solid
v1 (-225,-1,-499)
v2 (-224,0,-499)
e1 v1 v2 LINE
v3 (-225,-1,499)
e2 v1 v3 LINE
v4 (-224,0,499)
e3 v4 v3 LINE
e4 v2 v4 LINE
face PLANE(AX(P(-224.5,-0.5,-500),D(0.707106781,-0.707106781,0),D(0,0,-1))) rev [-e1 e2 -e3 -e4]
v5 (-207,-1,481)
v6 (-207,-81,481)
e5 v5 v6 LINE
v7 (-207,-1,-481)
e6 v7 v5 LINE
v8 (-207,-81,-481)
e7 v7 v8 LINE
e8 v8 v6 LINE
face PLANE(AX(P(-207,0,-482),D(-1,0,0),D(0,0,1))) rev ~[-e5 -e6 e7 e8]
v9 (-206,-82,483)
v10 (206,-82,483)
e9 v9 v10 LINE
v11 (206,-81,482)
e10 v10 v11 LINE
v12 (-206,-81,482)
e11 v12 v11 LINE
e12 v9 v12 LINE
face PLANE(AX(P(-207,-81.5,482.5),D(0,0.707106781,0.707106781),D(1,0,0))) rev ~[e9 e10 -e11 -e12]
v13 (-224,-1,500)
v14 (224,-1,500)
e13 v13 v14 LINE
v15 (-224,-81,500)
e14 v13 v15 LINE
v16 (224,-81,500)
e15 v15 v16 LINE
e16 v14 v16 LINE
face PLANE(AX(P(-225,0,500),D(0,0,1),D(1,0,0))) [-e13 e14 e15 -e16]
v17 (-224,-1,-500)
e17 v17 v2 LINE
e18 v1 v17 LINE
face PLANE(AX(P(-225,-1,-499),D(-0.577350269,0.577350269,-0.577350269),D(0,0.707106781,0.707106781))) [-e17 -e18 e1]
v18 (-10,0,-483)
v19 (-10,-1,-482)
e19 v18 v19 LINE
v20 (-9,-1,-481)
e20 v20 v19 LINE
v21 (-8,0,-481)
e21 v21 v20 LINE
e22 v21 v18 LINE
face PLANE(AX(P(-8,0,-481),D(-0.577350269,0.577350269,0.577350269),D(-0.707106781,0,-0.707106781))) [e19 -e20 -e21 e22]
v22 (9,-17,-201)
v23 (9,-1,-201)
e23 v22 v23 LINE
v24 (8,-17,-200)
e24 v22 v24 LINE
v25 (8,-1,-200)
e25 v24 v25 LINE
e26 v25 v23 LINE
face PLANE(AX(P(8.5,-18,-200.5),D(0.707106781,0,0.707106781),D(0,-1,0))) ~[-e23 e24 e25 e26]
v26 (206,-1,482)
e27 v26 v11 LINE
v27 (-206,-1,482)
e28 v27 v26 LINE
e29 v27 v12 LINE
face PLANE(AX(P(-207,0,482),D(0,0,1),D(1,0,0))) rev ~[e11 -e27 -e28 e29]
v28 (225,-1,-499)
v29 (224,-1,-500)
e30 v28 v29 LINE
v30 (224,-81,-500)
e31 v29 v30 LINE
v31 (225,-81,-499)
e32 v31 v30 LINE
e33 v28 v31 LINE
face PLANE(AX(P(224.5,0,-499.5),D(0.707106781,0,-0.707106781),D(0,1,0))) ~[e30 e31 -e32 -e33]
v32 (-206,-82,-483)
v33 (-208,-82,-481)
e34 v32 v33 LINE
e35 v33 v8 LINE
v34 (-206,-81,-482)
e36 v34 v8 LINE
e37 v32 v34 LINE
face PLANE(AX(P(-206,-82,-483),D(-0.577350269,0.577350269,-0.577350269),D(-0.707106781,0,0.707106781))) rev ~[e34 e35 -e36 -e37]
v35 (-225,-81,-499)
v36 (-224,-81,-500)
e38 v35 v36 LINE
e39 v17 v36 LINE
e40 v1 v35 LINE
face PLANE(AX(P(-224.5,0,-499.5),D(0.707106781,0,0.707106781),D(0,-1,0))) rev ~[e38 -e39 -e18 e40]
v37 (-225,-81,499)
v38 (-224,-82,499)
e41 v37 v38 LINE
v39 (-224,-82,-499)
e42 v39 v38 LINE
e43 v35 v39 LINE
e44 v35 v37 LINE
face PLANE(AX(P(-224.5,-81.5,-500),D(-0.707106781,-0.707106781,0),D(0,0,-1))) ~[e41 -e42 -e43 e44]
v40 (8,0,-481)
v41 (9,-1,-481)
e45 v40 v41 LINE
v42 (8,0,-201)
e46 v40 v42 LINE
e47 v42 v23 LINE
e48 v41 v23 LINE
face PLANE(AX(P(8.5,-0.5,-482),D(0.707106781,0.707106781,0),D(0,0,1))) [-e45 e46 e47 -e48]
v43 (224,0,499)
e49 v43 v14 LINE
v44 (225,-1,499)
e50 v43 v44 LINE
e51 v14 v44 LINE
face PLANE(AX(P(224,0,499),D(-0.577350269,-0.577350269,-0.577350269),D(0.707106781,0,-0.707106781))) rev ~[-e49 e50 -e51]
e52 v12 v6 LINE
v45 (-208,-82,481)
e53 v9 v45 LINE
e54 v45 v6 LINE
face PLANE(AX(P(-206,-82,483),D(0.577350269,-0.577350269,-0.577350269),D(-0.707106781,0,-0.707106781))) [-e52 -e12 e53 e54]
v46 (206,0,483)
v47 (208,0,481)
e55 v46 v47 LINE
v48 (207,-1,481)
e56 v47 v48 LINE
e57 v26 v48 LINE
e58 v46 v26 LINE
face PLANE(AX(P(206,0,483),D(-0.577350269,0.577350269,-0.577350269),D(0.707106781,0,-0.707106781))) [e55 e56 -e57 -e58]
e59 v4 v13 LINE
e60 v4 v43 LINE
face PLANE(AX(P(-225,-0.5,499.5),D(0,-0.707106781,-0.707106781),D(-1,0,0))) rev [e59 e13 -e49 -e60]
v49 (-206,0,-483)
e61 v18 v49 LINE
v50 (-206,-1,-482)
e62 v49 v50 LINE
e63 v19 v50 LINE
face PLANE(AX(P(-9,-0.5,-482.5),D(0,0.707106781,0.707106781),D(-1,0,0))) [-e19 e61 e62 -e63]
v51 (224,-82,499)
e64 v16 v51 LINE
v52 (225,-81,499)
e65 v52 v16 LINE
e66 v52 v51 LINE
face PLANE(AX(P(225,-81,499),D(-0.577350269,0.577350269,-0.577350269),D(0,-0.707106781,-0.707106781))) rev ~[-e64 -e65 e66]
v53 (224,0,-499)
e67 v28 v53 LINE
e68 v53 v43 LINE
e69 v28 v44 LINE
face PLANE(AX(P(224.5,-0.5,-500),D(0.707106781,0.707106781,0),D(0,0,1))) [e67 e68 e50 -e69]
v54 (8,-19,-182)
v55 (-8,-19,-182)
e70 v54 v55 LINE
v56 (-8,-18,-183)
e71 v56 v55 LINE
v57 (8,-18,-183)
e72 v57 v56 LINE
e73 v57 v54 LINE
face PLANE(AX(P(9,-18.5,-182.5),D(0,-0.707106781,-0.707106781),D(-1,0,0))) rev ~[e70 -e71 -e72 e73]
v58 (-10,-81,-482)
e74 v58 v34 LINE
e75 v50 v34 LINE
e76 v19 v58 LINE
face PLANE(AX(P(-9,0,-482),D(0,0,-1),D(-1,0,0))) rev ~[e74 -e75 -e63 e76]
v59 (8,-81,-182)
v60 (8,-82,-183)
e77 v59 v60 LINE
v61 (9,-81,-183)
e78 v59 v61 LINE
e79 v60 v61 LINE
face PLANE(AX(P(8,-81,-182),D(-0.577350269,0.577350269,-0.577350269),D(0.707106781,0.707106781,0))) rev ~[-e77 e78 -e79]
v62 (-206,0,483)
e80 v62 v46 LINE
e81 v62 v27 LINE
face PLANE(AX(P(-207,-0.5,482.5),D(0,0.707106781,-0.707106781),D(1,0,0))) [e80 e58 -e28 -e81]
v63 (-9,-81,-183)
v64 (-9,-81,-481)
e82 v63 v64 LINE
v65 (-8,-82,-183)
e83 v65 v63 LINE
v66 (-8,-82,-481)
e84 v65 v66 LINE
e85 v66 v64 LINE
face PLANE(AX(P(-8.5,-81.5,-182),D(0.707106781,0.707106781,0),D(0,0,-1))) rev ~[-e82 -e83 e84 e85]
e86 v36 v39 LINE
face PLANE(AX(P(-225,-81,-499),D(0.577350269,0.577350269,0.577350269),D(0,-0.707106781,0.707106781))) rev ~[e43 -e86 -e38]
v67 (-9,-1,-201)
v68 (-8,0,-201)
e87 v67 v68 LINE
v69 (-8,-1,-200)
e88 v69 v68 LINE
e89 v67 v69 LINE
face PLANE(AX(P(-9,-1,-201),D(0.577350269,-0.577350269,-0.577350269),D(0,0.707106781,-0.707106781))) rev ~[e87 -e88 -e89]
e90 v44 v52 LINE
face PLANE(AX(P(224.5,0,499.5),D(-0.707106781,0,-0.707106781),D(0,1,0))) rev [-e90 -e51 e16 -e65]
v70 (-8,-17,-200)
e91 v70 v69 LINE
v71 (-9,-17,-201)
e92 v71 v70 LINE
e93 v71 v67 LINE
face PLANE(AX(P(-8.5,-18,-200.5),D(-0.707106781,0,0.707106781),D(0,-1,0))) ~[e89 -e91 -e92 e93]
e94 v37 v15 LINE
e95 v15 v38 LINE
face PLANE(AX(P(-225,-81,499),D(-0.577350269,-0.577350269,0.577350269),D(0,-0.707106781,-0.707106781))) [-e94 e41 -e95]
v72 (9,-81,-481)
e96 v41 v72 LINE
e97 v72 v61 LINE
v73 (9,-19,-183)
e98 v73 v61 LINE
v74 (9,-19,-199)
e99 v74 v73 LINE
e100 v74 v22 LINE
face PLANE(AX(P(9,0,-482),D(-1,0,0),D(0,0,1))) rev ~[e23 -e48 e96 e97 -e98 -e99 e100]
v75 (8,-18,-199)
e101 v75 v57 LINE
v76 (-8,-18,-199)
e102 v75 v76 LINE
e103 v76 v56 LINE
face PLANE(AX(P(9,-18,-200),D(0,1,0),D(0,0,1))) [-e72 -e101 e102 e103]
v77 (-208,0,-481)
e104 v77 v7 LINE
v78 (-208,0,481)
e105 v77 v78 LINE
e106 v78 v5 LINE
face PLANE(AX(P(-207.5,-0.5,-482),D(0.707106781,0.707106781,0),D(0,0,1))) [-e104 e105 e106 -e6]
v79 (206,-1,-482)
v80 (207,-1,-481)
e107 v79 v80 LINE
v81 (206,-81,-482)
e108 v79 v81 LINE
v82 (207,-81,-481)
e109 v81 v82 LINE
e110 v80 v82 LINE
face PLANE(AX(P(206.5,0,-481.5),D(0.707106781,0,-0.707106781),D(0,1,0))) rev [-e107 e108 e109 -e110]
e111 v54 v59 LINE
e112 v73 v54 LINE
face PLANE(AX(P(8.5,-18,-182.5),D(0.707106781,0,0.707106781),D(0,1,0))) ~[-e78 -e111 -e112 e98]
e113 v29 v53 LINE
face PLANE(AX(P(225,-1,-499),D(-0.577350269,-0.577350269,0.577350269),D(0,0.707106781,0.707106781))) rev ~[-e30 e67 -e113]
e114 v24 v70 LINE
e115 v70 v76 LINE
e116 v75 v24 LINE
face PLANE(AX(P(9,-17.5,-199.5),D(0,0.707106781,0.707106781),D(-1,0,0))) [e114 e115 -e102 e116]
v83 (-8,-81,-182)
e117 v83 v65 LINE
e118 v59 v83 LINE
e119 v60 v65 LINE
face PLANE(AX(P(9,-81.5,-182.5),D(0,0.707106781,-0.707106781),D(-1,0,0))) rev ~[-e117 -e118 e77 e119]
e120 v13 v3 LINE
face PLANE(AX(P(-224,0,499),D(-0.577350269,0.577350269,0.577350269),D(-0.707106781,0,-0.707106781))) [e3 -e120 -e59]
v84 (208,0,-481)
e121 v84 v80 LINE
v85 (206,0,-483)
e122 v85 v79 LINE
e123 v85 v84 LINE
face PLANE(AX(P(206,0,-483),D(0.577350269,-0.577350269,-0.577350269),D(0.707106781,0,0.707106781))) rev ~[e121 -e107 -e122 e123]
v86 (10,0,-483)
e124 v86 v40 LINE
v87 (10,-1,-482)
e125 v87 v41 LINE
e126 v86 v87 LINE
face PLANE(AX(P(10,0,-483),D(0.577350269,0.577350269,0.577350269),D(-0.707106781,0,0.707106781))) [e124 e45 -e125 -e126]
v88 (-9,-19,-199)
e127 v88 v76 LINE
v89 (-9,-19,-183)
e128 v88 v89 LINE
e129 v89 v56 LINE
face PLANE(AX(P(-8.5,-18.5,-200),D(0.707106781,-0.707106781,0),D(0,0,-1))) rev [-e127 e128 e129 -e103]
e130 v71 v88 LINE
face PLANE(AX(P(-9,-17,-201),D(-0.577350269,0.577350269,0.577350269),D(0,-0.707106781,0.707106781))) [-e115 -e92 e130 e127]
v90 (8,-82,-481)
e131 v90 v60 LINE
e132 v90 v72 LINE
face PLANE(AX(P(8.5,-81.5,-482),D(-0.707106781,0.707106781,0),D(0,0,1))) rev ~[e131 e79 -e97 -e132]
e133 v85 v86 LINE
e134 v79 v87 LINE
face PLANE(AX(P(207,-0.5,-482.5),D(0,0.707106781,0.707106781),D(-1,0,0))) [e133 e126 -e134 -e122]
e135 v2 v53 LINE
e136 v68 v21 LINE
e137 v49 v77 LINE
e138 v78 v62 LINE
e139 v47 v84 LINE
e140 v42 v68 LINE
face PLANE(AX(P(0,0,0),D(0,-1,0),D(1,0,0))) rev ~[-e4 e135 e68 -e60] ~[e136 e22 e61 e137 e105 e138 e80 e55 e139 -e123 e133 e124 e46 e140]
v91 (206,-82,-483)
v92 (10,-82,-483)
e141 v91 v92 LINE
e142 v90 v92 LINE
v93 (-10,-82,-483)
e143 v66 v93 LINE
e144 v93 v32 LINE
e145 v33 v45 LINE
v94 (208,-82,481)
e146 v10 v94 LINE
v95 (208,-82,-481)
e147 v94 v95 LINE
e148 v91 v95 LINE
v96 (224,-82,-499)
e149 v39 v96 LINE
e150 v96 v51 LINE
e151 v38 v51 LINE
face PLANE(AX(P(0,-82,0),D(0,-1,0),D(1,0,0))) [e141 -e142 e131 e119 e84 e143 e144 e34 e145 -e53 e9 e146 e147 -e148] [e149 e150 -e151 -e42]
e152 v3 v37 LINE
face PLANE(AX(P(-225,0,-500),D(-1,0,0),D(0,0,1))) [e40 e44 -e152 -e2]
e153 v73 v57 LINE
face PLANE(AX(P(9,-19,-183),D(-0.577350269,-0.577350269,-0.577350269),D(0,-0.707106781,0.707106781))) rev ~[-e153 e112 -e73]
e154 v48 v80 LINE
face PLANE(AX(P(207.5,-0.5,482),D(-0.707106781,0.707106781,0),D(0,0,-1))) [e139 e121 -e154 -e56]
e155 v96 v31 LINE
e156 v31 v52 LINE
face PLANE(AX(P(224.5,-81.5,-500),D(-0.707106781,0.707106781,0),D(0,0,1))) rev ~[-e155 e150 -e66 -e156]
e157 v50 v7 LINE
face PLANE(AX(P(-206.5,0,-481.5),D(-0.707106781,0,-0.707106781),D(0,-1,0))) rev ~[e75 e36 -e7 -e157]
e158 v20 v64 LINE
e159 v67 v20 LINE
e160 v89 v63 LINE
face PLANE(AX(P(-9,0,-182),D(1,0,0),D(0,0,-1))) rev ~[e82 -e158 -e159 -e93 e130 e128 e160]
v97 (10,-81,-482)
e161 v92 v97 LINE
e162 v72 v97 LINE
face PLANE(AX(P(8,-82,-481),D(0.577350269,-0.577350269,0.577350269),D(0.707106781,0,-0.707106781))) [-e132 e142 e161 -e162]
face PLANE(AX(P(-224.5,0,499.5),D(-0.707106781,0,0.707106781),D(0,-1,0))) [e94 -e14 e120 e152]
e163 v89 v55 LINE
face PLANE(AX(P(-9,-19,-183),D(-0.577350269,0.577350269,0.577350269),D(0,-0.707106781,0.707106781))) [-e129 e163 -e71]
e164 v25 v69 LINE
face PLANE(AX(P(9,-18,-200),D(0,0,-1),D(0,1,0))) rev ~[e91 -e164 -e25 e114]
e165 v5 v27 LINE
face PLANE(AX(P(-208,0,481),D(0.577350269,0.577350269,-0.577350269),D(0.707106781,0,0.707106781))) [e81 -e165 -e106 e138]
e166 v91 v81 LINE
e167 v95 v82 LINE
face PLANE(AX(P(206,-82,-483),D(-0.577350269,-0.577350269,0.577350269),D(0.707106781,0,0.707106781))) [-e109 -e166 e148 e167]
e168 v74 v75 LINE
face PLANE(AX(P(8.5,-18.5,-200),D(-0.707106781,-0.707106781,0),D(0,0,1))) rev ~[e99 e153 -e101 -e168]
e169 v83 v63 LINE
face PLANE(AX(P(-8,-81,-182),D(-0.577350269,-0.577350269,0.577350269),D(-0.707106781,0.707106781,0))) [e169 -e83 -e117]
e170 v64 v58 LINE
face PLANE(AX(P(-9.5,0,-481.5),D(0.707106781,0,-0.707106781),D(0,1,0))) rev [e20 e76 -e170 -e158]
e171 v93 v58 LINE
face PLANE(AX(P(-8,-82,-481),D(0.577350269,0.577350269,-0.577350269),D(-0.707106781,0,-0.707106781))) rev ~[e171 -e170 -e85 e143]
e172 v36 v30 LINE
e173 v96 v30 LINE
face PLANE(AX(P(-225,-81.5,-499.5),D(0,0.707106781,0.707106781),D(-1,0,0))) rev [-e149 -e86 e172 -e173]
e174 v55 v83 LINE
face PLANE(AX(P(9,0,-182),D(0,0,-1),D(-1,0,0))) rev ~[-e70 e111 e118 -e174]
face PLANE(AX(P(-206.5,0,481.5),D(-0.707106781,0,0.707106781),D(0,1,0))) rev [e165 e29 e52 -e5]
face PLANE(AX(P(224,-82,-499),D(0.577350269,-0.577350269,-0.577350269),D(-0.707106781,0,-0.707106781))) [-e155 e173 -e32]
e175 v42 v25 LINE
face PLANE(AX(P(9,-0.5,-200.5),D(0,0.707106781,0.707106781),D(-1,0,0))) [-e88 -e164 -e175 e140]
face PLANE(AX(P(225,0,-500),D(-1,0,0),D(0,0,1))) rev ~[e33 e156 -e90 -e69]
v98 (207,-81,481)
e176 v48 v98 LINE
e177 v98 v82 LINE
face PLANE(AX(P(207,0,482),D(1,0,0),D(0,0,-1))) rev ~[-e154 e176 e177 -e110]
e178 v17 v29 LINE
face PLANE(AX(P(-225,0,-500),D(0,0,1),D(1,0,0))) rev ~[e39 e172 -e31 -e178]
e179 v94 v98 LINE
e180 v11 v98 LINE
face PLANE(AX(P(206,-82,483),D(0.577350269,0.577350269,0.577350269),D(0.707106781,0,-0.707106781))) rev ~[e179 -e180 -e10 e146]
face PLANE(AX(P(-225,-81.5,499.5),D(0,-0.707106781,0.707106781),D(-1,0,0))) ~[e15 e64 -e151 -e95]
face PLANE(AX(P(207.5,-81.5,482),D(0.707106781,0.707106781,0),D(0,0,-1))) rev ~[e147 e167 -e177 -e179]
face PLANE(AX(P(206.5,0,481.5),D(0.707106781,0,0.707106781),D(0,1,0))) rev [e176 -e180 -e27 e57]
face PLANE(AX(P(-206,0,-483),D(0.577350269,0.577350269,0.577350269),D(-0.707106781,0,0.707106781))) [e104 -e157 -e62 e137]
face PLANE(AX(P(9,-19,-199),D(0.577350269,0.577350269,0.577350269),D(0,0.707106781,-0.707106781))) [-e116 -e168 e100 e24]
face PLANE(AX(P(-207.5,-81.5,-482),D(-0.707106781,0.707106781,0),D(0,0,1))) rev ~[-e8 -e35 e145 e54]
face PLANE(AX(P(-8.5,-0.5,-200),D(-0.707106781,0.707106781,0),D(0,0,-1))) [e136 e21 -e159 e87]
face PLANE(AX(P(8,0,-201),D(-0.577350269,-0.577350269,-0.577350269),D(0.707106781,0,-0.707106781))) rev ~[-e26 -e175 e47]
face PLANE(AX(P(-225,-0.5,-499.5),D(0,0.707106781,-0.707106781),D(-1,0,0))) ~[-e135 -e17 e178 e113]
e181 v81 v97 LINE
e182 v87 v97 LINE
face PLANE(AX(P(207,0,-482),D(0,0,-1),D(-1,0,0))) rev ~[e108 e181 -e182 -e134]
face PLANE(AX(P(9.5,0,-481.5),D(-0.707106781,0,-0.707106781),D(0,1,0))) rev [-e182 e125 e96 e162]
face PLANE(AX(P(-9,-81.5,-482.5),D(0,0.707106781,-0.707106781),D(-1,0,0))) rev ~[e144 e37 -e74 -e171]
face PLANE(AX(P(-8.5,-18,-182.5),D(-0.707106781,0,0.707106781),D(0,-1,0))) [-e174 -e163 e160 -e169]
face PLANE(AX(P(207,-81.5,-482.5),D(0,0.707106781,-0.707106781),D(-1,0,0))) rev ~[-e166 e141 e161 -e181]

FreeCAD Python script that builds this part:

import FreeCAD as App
import Part
import Sketcher
from FreeCAD import Vector
Q = App.Units.Quantity

doc = App.newDocument("Part")
body = doc.addObject("PartDesign::Body", "Body")

# Sketch on XZ plane
sketch1 = body.newObject("Sketcher::SketchObject", "Sketch")
sketch1.AttachmentSupport = (doc.getObject("XZ_Plane"), [""])
sketch1.MapMode = "FlatFace"
sketch1.addGeometry([
    Part.LineSegment(Vector(-225, 500, 0), Vector(-225, -500, 0)),  # 0
    Part.LineSegment(Vector(-225, -500, 0), Vector(225, -500, 0)),  # 1
    Part.LineSegment(Vector(225, -500, 0), Vector(225, 500, 0)),  # 2
    Part.LineSegment(Vector(225, 500, 0), Vector(-225, 500, 0)),  # 3
    Part.LineSegment(Vector(-207, -482, 0), Vector(-207, 482, 0)),  # 4
    Part.LineSegment(Vector(-207, 482, 0), Vector(207, 482, 0)),  # 5
    Part.LineSegment(Vector(207, 482, 0), Vector(207, -482, 0)),  # 6
    Part.LineSegment(Vector(207, -482, 0), Vector(9, -482, 0)),  # 7
    Part.LineSegment(Vector(9, -482, 0), Vector(9, -182, 0)),  # 8
    Part.LineSegment(Vector(9, -182, 0), Vector(-9, -182, 0)),  # 9
    Part.LineSegment(Vector(-9, -182, 0), Vector(-9, -482, 0)),  # 10
    Part.LineSegment(Vector(-9, -482, 0), Vector(-207, -482, 0)),  # 11
], False)
sketch1.addConstraint([
    Sketcher.Constraint("Coincident", 0, 2, 1, 1),
    Sketcher.Constraint("Coincident", 1, 2, 2, 1),
    Sketcher.Constraint("Coincident", 2, 2, 3, 1),
    Sketcher.Constraint("Coincident", 3, 2, 0, 1),
    Sketcher.Constraint("Coincident", 4, 2, 5, 1),
    Sketcher.Constraint("Coincident", 5, 2, 6, 1),
    Sketcher.Constraint("Coincident", 6, 2, 7, 1),
    Sketcher.Constraint("Coincident", 7, 2, 8, 1),
    Sketcher.Constraint("Coincident", 8, 2, 9, 1),
    Sketcher.Constraint("Coincident", 9, 2, 10, 1),
    Sketcher.Constraint("Coincident", 10, 2, 11, 1),
    Sketcher.Constraint("Coincident", 11, 2, 4, 1),
    Sketcher.Constraint("Vertical", 0),
    Sketcher.Constraint("Horizontal", 1),
    Sketcher.Constraint("Vertical", 2),
    Sketcher.Constraint("Horizontal", 3),
    Sketcher.Constraint("Vertical", 4),
    Sketcher.Constraint("Horizontal", 5),
    Sketcher.Constraint("Vertical", 6),
    Sketcher.Constraint("Horizontal", 7),
    Sketcher.Constraint("Vertical", 8),
    Sketcher.Constraint("Horizontal", 9),
    Sketcher.Constraint("Vertical", 10),
    Sketcher.Constraint("Horizontal", 11),
    Sketcher.Constraint("Symmetric", 0, 2, 2, 2, -1, 1),
    Sketcher.Constraint("Symmetric", 4, 2, 6, 2, -1, 1),
    Sketcher.Constraint("Symmetric", 7, 2, 10, 2, -2),
    Sketcher.Constraint("DistanceX", 1, 1, 1, 2, Q("450 mm")),
    Sketcher.Constraint("DistanceX", 5, 1, 5, 2, Q("414 mm")),
    Sketcher.Constraint("DistanceX", 7, 2, 7, 1, Q("198 mm")),
    Sketcher.Constraint("DistanceY", 0, 2, 0, 1, Q("1000 mm")),
    Sketcher.Constraint("DistanceY", 4, 1, 4, 2, Q("964 mm")),
    Sketcher.Constraint("DistanceY", 8, 1, 8, 2, Q("300 mm")),
])
pad1 = body.newObject("PartDesign::Pad", "Pad")
pad1.Profile = sketch1
pad1.Length = 82

# Sketch on YZ plane
sketch2 = body.newObject("Sketcher::SketchObject", "Sketch001")
sketch2.AttachmentSupport = (doc.getObject("YZ_Plane"), [""])
sketch2.MapMode = "FlatFace"
sketch2.AttachmentOffset = App.Placement(Vector(0, 0, 9), App.Rotation())
sketch2.addGeometry([
    Part.LineSegment(Vector(-18, -182, 0), Vector(-18, -200, 0)),
    Part.LineSegment(Vector(-18, -200, 0), Vector(0, -200, 0)),
    Part.LineSegment(Vector(0, -200, 0), Vector(0, -182, 0)),
    Part.LineSegment(Vector(0, -182, 0), Vector(-18, -182, 0)),
], False)
sketch2.addConstraint([
    Sketcher.Constraint("Coincident", 0, 2, 1, 1),
    Sketcher.Constraint("Coincident", 1, 2, 2, 1),
    Sketcher.Constraint("Coincident", 2, 2, 3, 1),
    Sketcher.Constraint("Coincident", 3, 2, 0, 1),
    Sketcher.Constraint("Vertical", 0),
    Sketcher.Constraint("Horizontal", 1),
    Sketcher.Constraint("Vertical", 2),
    Sketcher.Constraint("Horizontal", 3),
    Sketcher.Constraint("PointOnObject", 1, 2, -2),
    Sketcher.Constraint("Equal", 3, 0),
    Sketcher.Constraint("DistanceX", 1, 1, 1, 2, Q("18 mm")),
    Sketcher.Constraint("DistanceY", 0, 2, -1, 1, Q("200 mm")),
])
pocket1 = body.newObject("PartDesign::Pocket", "Pocket")
pocket1.Profile = sketch2
pocket1.Length = 25
doc.recompute()

chamfer = body.newObject("PartDesign::Chamfer", "Chamfer")
chamfer.Base = (pocket1, ["Edge1"])
chamfer.UseAllEdges = True
chamfer.Size = 1

doc.recompute()
